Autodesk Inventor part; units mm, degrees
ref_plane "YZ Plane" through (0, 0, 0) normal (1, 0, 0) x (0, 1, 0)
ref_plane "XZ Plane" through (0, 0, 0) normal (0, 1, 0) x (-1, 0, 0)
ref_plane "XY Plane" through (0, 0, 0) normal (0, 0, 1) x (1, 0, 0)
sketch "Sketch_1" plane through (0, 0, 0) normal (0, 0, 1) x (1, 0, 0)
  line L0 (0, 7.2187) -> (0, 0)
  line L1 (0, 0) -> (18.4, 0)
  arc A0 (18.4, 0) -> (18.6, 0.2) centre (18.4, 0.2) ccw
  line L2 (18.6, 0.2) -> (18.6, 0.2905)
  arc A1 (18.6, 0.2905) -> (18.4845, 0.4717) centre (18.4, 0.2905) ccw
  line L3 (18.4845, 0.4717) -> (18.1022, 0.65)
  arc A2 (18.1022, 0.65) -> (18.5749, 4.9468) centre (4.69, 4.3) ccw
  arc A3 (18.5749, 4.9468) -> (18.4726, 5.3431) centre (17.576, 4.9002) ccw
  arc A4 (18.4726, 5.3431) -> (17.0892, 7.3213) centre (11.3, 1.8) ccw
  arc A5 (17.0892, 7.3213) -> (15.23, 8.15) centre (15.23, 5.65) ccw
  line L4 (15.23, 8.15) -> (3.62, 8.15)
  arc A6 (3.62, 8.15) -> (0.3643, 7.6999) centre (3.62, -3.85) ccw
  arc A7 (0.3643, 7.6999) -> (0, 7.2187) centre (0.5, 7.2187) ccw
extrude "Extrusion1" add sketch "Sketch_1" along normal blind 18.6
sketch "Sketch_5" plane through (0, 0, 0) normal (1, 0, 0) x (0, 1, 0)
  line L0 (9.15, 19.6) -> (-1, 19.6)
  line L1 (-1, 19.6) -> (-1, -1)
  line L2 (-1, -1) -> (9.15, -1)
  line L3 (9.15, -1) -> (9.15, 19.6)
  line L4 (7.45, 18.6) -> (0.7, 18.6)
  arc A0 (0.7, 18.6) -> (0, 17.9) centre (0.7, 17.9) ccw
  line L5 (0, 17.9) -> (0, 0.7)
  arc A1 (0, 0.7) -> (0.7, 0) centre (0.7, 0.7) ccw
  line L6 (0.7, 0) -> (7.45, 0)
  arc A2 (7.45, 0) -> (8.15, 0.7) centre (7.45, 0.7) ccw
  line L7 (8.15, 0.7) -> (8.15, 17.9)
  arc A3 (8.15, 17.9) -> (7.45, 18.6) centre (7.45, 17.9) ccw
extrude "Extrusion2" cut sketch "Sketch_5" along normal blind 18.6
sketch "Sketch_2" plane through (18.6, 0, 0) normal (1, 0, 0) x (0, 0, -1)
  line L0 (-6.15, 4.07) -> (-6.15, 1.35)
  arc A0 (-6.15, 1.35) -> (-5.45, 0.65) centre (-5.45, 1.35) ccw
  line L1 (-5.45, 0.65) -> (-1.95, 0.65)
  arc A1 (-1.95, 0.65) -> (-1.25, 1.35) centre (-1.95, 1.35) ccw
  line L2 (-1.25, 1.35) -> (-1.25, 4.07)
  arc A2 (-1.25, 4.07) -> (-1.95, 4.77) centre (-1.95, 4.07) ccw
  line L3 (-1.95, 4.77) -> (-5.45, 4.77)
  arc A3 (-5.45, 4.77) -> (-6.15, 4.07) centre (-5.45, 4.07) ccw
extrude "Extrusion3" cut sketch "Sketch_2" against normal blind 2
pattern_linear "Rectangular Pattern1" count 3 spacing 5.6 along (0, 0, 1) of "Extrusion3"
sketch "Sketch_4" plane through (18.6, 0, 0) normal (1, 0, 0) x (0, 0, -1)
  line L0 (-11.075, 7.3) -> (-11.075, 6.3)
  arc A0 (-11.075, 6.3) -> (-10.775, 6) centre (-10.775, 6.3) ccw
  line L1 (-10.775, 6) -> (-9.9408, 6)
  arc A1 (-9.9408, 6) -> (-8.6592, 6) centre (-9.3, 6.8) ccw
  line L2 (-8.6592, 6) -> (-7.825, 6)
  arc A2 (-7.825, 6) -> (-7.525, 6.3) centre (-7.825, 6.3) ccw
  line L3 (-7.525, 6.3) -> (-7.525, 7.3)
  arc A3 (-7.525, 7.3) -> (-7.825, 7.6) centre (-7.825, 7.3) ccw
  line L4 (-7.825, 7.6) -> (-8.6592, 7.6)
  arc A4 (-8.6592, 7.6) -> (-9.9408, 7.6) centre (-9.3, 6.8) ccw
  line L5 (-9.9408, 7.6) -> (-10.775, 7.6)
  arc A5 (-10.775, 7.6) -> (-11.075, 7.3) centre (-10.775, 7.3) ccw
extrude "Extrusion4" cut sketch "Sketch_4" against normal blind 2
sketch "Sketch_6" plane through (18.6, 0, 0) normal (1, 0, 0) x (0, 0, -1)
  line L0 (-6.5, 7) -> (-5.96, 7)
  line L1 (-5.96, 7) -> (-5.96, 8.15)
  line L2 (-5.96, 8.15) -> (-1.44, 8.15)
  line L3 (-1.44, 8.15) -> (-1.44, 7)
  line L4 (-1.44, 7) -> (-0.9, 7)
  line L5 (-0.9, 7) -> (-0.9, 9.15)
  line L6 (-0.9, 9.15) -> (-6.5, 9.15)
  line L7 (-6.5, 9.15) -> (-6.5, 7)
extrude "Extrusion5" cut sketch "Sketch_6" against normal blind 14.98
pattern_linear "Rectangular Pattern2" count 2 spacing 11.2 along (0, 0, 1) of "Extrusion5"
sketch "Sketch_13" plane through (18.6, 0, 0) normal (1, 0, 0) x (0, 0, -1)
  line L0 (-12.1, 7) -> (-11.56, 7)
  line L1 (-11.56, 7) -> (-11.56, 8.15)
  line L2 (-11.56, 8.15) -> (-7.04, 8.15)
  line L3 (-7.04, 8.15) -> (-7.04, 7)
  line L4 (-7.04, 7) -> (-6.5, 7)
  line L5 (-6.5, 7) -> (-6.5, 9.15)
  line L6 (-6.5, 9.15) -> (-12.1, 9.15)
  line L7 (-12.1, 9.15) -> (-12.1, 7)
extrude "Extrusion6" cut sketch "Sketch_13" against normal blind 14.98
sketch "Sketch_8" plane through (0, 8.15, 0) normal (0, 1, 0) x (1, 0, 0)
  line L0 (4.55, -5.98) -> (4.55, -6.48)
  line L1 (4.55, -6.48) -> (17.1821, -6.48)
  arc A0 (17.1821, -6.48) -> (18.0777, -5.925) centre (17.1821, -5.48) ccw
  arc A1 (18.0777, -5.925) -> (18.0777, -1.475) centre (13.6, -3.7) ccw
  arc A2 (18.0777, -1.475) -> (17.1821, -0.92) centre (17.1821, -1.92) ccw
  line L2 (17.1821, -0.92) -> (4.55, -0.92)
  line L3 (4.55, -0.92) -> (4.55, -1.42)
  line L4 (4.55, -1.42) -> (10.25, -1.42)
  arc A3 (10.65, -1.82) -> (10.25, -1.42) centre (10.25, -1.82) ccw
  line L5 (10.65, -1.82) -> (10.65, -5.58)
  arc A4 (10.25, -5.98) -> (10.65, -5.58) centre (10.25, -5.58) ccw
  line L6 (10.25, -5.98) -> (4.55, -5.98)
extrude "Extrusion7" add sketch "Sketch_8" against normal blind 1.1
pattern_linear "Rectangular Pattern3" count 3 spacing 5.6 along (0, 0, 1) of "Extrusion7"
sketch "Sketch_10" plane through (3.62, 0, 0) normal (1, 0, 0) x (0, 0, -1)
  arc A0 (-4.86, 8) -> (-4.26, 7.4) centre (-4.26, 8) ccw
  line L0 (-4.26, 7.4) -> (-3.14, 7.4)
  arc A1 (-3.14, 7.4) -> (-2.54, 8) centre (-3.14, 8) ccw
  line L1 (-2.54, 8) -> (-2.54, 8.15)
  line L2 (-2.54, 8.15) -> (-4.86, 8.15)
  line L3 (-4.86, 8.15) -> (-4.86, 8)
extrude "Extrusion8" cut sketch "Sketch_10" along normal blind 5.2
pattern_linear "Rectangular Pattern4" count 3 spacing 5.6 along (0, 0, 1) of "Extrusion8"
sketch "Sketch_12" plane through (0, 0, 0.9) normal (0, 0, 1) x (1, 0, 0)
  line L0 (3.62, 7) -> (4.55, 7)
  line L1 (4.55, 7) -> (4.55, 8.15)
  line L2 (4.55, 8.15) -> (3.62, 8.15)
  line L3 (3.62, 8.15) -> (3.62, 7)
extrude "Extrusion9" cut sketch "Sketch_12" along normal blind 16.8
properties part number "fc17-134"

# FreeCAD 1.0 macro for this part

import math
import FreeCAD as App
import Part
import Sketcher

V = App.Vector


def add_polygon(sketch, points):
    """Adds a closed chain of lines whose ends are joined by coincident constraints."""
    first, n = sketch.GeometryCount, len(points)
    for a, b in zip(points, points[1:] + points[:1]):
        sketch.addGeometry(Part.LineSegment(App.Vector(*a, 0), App.Vector(*b, 0)), False)
    for i in range(n):
        sketch.addConstraint(Sketcher.Constraint("Coincident", first + i, 2, first + (i + 1) % n, 1))

doc = App.newDocument("Part")
body = doc.addObject("PartDesign::Body", "Body")

# Sketch on XY plane
sketch1 = body.newObject("Sketcher::SketchObject", "Sketch")
sketch1.AttachmentSupport = (doc.getObject("XY_Plane"), [""])
sketch1.MapMode = "FlatFace"
sketch1.addGeometry(Part.ArcOfCircle(Part.Circle(V(0.5, 7.2187, 0), V(0, 0, 1), 0.499968), math.radians(105.748628), math.radians(180)), False)
sketch1.addGeometry(Part.LineSegment(V(0, 7.2187, 0), V(0, 0, 0)), False)
sketch1.addGeometry(Part.LineSegment(V(0, 0, 0), V(18.4, 0, 0)), False)
sketch1.addGeometry(Part.ArcOfCircle(Part.Circle(V(18.4, 0.2, 0), V(0, 0, 1), 0.2), math.radians(-90), math.radians(0)), False)
sketch1.addGeometry(Part.LineSegment(V(18.6, 0.2, 0), V(18.6, 0.2905, 0)), False)
sketch1.addGeometry(Part.ArcOfCircle(Part.Circle(V(18.4, 0.2905, 0), V(0, 0, 1), 0.2), math.radians(0), math.radians(64.998688)), False)
sketch1.addGeometry(Part.LineSegment(V(18.4845, 0.4717, 0), V(18.1022, 0.65, 0)), False)
sketch1.addGeometry(Part.ArcOfCircle(Part.Circle(V(4.691181, 4.299776, 0), V(0, 0, 1), 13.898787), math.radians(-15.224197), math.radians(2.66823)), False)
sketch1.addGeometry(Part.ArcOfCircle(Part.Circle(V(17.576, 4.9002, 0), V(0, 0, 1), 0.999986), math.radians(2.670987), math.radians(26.288324)), False)
sketch1.addGeometry(Part.ArcOfCircle(Part.Circle(V(11.3, 1.8, 0), V(0, 0, 1), 7.999984), math.radians(26.288316), math.radians(43.643148)), False)
sketch1.addGeometry(Part.ArcOfCircle(Part.Circle(V(15.23, 5.65, 0), V(0, 0, 1), 2.499974), math.radians(41.953483), math.radians(90)), False)
sketch1.addGeometry(Part.LineSegment(V(15.23, 8.15, 0), V(3.62, 8.15, 0)), False)
sketch1.addGeometry(Part.ArcOfCircle(Part.Circle(V(3.62, -3.85, 0), V(0, 0, 1), 12), math.radians(90), math.radians(105.742148)), False)
sketch1.addConstraint(Sketcher.Constraint("Coincident", 0, 2, 1, 1))
sketch1.addConstraint(Sketcher.Constraint("Coincident", 1, 2, 2, 1))
sketch1.addConstraint(Sketcher.Constraint("Coincident", 2, 2, 3, 1))
sketch1.addConstraint(Sketcher.Constraint("Coincident", 3, 2, 4, 1))
sketch1.addConstraint(Sketcher.Constraint("Coincident", 4, 2, 5, 1))
sketch1.addConstraint(Sketcher.Constraint("Coincident", 5, 2, 6, 1))
sketch1.addConstraint(Sketcher.Constraint("Coincident", 6, 2, 7, 1))
sketch1.addConstraint(Sketcher.Constraint("Coincident", 7, 2, 8, 1))
sketch1.addConstraint(Sketcher.Constraint("Coincident", 8, 2, 9, 1))
sketch1.addConstraint(Sketcher.Constraint("Coincident", 9, 2, 10, 1))
sketch1.addConstraint(Sketcher.Constraint("Coincident", 10, 2, 11, 1))
sketch1.addConstraint(Sketcher.Constraint("Coincident", 11, 2, 12, 1))
sketch1.addConstraint(Sketcher.Constraint("Coincident", 12, 2, 0, 1))
sketch1.addConstraint(Sketcher.Constraint("Vertical", 1))
sketch1.addConstraint(Sketcher.Constraint("Horizontal", 2))
sketch1.addConstraint(Sketcher.Constraint("Vertical", 4))
sketch1.addConstraint(Sketcher.Constraint("Horizontal", 11))
sketch1.addConstraint(Sketcher.Constraint("Coincident", 1, 2, -1, 1))
sketch1.addConstraint(Sketcher.Constraint("Radius", 8, 1.0))
sketch1.addConstraint(Sketcher.Constraint("Radius", 9, 8.0))
sketch1.addConstraint(Sketcher.Constraint("Radius", 12, 12.0))
sketch1.addConstraint(Sketcher.Constraint("Radius", 0, 0.5))
sketch1.addConstraint(Sketcher.Constraint("Radius", 3, 0.2))
sketch1.addConstraint(Sketcher.Constraint("Radius", 5, 0.2))
sketch1.addConstraint(Sketcher.Constraint("Radius", 10, 2.5))
sketch1.addConstraint(Sketcher.Constraint("DistanceX", 2, 1, 2, 2, 18.4))
sketch1.addConstraint(Sketcher.Constraint("DistanceX", 11, 2, 11, 1, 11.61))
sketch1.addConstraint(Sketcher.Constraint("DistanceX", -1, 1, 3, 3, 18.4))
sketch1.addConstraint(Sketcher.Constraint("DistanceX", -1, 1, 9, 3, 11.3))
sketch1.addConstraint(Sketcher.Constraint("DistanceY", -1, 1, 9, 3, 1.8))
sketch1.addConstraint(Sketcher.Constraint("DistanceY", -1, 1, 3, 2, 0.2))
sketch1.addConstraint(Sketcher.Constraint("DistanceY", -1, 1, 12, 2, 7.7))
sketch1.addConstraint(Sketcher.Constraint("Radius", 7, 13.8988))
sketch1.addConstraint(Sketcher.Constraint("DistanceX", -1, 1, 10, 3, 15.23))
sketch1.addConstraint(Sketcher.Constraint("DistanceY", -1, 1, 10, 3, 5.65))
sketch1.addConstraint(Sketcher.Constraint("DistanceX", -1, 1, 12, 3, 3.62))
sketch1.addConstraint(Sketcher.Constraint("DistanceY", -1, 1, 6, 2, 0.65))
sketch1.addConstraint(Sketcher.Constraint("DistanceX", -1, 1, 10, 2, 15.23))
sketch1.addConstraint(Sketcher.Constraint("DistanceY", 1, 2, 1, 1, 7.2187))
sketch1.addConstraint(Sketcher.Constraint("DistanceY", 4, 1, 4, 2, 0.0905))
sketch1.addConstraint(Sketcher.Constraint("DistanceX", -1, 1, 8, 3, 17.576))
sketch1.addConstraint(Sketcher.Constraint("DistanceX", -1, 1, 7, 2, 18.575))
sketch1.addConstraint(Sketcher.Constraint("DistanceY", -1, 1, 8, 2, 5.343))
sketch1.addConstraint(Sketcher.Constraint("DistanceY", 7, 3, 0, 3, 2.919))
sketch1.addConstraint(Sketcher.Constraint("DistanceY", 5, 2, 7, 2, 4.475))
sketch1.addConstraint(Sketcher.Constraint("DistanceX", 8, 2, 5, 2, 0.012))
pad1 = body.newObject("PartDesign::Pad", "Pad")
pad1.Profile = sketch1
pad1.Length = 18.6

# Sketch on YZ plane
sketch2 = body.newObject("Sketcher::SketchObject", "Sketch001")
sketch2.AttachmentSupport = (doc.getObject("YZ_Plane"), [""])
sketch2.MapMode = "FlatFace"
add_polygon(sketch2, [(9.2, -1), (9.2, 19.6), (-1, 19.6), (-1, -1)])  # lines 0-3
sketch2.addGeometry(Part.LineSegment(V(0.7, 18.6, 0), V(7.5, 18.6, 0)), False)  # 4
sketch2.addGeometry(Part.ArcOfCircle(Part.Circle(V(7.5, 17.9, 0), V(0, 0, 1), 0.7), math.radians(0), math.radians(90)), False)  # 5
sketch2.addGeometry(Part.LineSegment(V(8.2, 17.9, 0), V(8.2, 0.7, 0)), False)  # 6
sketch2.addGeometry(Part.ArcOfCircle(Part.Circle(V(7.5, 0.7, 0), V(0, 0, 1), 0.7), math.radians(-90), math.radians(0)), False)  # 7
sketch2.addGeometry(Part.LineSegment(V(7.5, 0, 0), V(0.7, 0, 0)), False)  # 8
sketch2.addGeometry(Part.ArcOfCircle(Part.Circle(V(0.7, 0.7, 0), V(0, 0, 1), 0.7), math.radians(180), math.radians(270)), False)  # 9
sketch2.addGeometry(Part.LineSegment(V(0, 0.7, 0), V(0, 17.9, 0)), False)  # 10
sketch2.addGeometry(Part.ArcOfCircle(Part.Circle(V(0.7, 17.9, 0), V(0, 0, 1), 0.7), math.radians(90), math.radians(180)), False)  # 11
sketch2.addConstraint(Sketcher.Constraint("Tangent", 4, 2, 5, 2))
sketch2.addConstraint(Sketcher.Constraint("Tangent", 5, 1, 6, 1))
sketch2.addConstraint(Sketcher.Constraint("Tangent", 6, 2, 7, 2))
sketch2.addConstraint(Sketcher.Constraint("Tangent", 7, 1, 8, 1))
sketch2.addConstraint(Sketcher.Constraint("Tangent", 8, 2, 9, 2))
sketch2.addConstraint(Sketcher.Constraint("Tangent", 9, 1, 10, 1))
sketch2.addConstraint(Sketcher.Constraint("Tangent", 10, 2, 11, 2))
sketch2.addConstraint(Sketcher.Constraint("Tangent", 11, 1, 4, 1))
sketch2.addConstraint(Sketcher.Constraint("Vertical", 0))
sketch2.addConstraint(Sketcher.Constraint("Horizontal", 1))
sketch2.addConstraint(Sketcher.Constraint("Vertical", 2))
sketch2.addConstraint(Sketcher.Constraint("Horizontal", 3))
sketch2.addConstraint(Sketcher.Constraint("Horizontal", 4))
sketch2.addConstraint(Sketcher.Constraint("Vertical", 6))
sketch2.addConstraint(Sketcher.Constraint("Horizontal", 8))
sketch2.addConstraint(Sketcher.Constraint("Vertical", 10))
sketch2.addConstraint(Sketcher.Constraint("Equal", 5, 7))
sketch2.addConstraint(Sketcher.Constraint("Equal", 7, 9))
sketch2.addConstraint(Sketcher.Constraint("Equal", 9, 11))
sketch2.addConstraint(Sketcher.Constraint("PointOnObject", 7, 1, -1))
sketch2.addConstraint(Sketcher.Constraint("PointOnObject", 9, 1, -2))
sketch2.addConstraint(Sketcher.Constraint("Radius", 5, 0.7))
sketch2.addConstraint(Sketcher.Constraint("DistanceY", 0, 1, 0, 2, 20.6))
sketch2.addConstraint(Sketcher.Constraint("DistanceY", 6, 2, 6, 1, 17.2))
sketch2.addConstraint(Sketcher.Constraint("DistanceX", 1, 2, -1, 1, 1.0))
sketch2.addConstraint(Sketcher.Constraint("DistanceY", 2, 2, -1, 1, 1.0))
sketch2.addConstraint(Sketcher.Constraint("DistanceX", 5, 1, 0, 2, 1.0))
sketch2.addConstraint(Sketcher.Constraint("DistanceX", 1, 2, 1, 1, 10.15))
pocket1 = body.newObject("PartDesign::Pocket", "Pocket")
pocket1.Profile = sketch2
pocket1.Length = 18.6
pocket1.Reversed = True

# Sketch on YZ plane
sketch3 = body.newObject("Sketcher::SketchObject", "Sketch002")
sketch3.AttachmentSupport = (doc.getObject("YZ_Plane"), [""])
sketch3.MapMode = "FlatFace"
sketch3.AttachmentOffset = App.Placement(V(0, 0, 18.6), App.Rotation())
sketch3.addGeometry(Part.ArcOfCircle(Part.Circle(V(4.1, 5.5, 0), V(0, 0, 1), 0.7), math.radians(0), math.radians(90)), False)
sketch3.addGeometry(Part.LineSegment(V(4.1, 6.2, 0), V(1.4, 6.2, 0)), False)
sketch3.addGeometry(Part.ArcOfCircle(Part.Circle(V(1.4, 5.5, 0), V(0, 0, 1), 0.7), math.radians(90), math.radians(180)), False)
sketch3.addGeometry(Part.LineSegment(V(0.7, 5.5, 0), V(0.7, 1.9, 0)), False)
sketch3.addGeometry(Part.ArcOfCircle(Part.Circle(V(1.4, 1.9, 0), V(0, 0, 1), 0.7), math.radians(180), math.radians(270)), False)
sketch3.addGeometry(Part.LineSegment(V(1.4, 1.2, 0), V(4.1, 1.2, 0)), False)
sketch3.addGeometry(Part.ArcOfCircle(Part.Circle(V(4.1, 1.9, 0), V(0, 0, 1), 0.7), math.radians(-90), math.radians(0)), False)
sketch3.addGeometry(Part.LineSegment(V(4.8, 1.9, 0), V(4.8, 5.5, 0)), False)
sketch3.addConstraint(Sketcher.Constraint("Tangent", 0, 2, 1, 1))
sketch3.addConstraint(Sketcher.Constraint("Tangent", 1, 2, 2, 1))
sketch3.addConstraint(Sketcher.Constraint("Tangent", 2, 2, 3, 1))
sketch3.addConstraint(Sketcher.Constraint("Tangent", 3, 2, 4, 1))
sketch3.addConstraint(Sketcher.Constraint("Tangent", 4, 2, 5, 1))
sketch3.addConstraint(Sketcher.Constraint("Tangent", 5, 2, 6, 1))
sketch3.addConstraint(Sketcher.Constraint("Tangent", 6, 2, 7, 1))
sketch3.addConstraint(Sketcher.Constraint("Tangent", 7, 2, 0, 1))
sketch3.addConstraint(Sketcher.Constraint("Horizontal", 1))
sketch3.addConstraint(Sketcher.Constraint("Vertical", 3))
sketch3.addConstraint(Sketcher.Constraint("Horizontal", 5))
sketch3.addConstraint(Sketcher.Constraint("Vertical", 7))
sketch3.addConstraint(Sketcher.Constraint("Equal", 0, 2))
sketch3.addConstraint(Sketcher.Constraint("Equal", 2, 4))
sketch3.addConstraint(Sketcher.Constraint("Equal", 4, 6))
sketch3.addConstraint(Sketcher.Constraint("Radius", 0, 0.7))
sketch3.addConstraint(Sketcher.Constraint("DistanceY", 3, 2, 3, 1, 3.5))
sketch3.addConstraint(Sketcher.Constraint("DistanceX", 1, 2, 1, 1, 2.72))
sketch3.addConstraint(Sketcher.Constraint("DistanceX", -1, 1, 0, 3, 4.07))
sketch3.addConstraint(Sketcher.Constraint("DistanceY", -1, 1, 0, 3, 5.45))
pocket2 = body.newObject("PartDesign::Pocket", "Pocket001")
pocket2.Profile = sketch3
pocket2.Length = 2
doc.recompute()

linearpattern = body.newObject("PartDesign::LinearPattern", "LinearPattern")
linearpattern.Originals = [pocket2]
linearpattern.Direction = (doc.getObject("Z_Axis"), [""])
linearpattern.Mode = "offset"
linearpattern.Offset = 5.6
linearpattern.Occurrences = 3
body.Tip = linearpattern

# Sketch on YZ plane
sketch4 = body.newObject("Sketcher::SketchObject", "Sketch003")
sketch4.AttachmentSupport = (doc.getObject("YZ_Plane"), [""])
sketch4.MapMode = "FlatFace"
sketch4.AttachmentOffset = App.Placement(V(0, 0, 18.6), App.Rotation())
sketch4.addGeometry(Part.ArcOfCircle(Part.Circle(V(7.3, 10.78, 0), V(0, 0, 1), 0.3), math.radians(0), math.radians(90)), False)
sketch4.addGeometry(Part.LineSegment(V(7.3, 11.07, 0), V(6.3, 11.07, 0)), False)
sketch4.addGeometry(Part.ArcOfCircle(Part.Circle(V(6.3, 10.78, 0), V(0, 0, 1), 0.3), math.radians(90), math.radians(180)), False)
sketch4.addGeometry(Part.LineSegment(V(6, 10.78, 0), V(6, 9.94, 0)), False)
sketch4.addGeometry(Part.ArcOfCircle(Part.Circle(V(6.8, 9.3, 0), V(0, 0, 1), 1.02), math.radians(141), math.radians(219)), False)
sketch4.addGeometry(Part.LineSegment(V(6, 8.66, 0), V(6, 7.83, 0)), False)
sketch4.addGeometry(Part.ArcOfCircle(Part.Circle(V(6.3, 7.83, 0), V(0, 0, 1), 0.3), math.radians(180), math.radians(270)), False)
sketch4.addGeometry(Part.LineSegment(V(6.3, 7.53, 0), V(7.3, 7.53, 0)), False)
sketch4.addGeometry(Part.ArcOfCircle(Part.Circle(V(7.3, 7.83, 0), V(0, 0, 1), 0.3), math.radians(-90), math.radians(0)), False)
sketch4.addGeometry(Part.LineSegment(V(7.6, 7.83, 0), V(7.6, 8.66, 0)), False)
sketch4.addGeometry(Part.ArcOfCircle(Part.Circle(V(6.8, 9.3, 0), V(0, 0, 1), 1.02), math.radians(-39), math.radians(39)), False)
sketch4.addGeometry(Part.LineSegment(V(7.6, 9.94, 0), V(7.6, 10.78, 0)), False)
sketch4.addConstraint(Sketcher.Constraint("Tangent", 0, 2, 1, 1))
sketch4.addConstraint(Sketcher.Constraint("Tangent", 1, 2, 2, 1))
sketch4.addConstraint(Sketcher.Constraint("Tangent", 2, 2, 3, 1))
sketch4.addConstraint(Sketcher.Constraint("Coincident", 3, 2, 4, 1))
sketch4.addConstraint(Sketcher.Constraint("Coincident", 4, 2, 5, 1))
sketch4.addConstraint(Sketcher.Constraint("Tangent", 5, 2, 6, 1))
sketch4.addConstraint(Sketcher.Constraint("Tangent", 6, 2, 7, 1))
sketch4.addConstraint(Sketcher.Constraint("Tangent", 7, 2, 8, 1))
sketch4.addConstraint(Sketcher.Constraint("Tangent", 8, 2, 9, 1))
sketch4.addConstraint(Sketcher.Constraint("Coincident", 9, 2, 10, 1))
sketch4.addConstraint(Sketcher.Constraint("Coincident", 10, 2, 11, 1))
sketch4.addConstraint(Sketcher.Constraint("Tangent", 11, 2, 0, 1))
sketch4.addConstraint(Sketcher.Constraint("Horizontal", 1))
sketch4.addConstraint(Sketcher.Constraint("Vertical", 3))
sketch4.addConstraint(Sketcher.Constraint("Vertical", 5))
sketch4.addConstraint(Sketcher.Constraint("Horizontal", 7))
sketch4.addConstraint(Sketcher.Constraint("Vertical", 9))
sketch4.addConstraint(Sketcher.Constraint("Vertical", 11))
sketch4.addConstraint(Sketcher.Constraint("Coincident", 10, 3, 4, 3))
sketch4.addConstraint(Sketcher.Constraint("Equal", 0, 2))
sketch4.addConstraint(Sketcher.Constraint("Equal", 2, 6))
sketch4.addConstraint(Sketcher.Constraint("Equal", 6, 8))
sketch4.addConstraint(Sketcher.Constraint("Equal", 4, 10))
sketch4.addConstraint(Sketcher.Constraint("Horizontal", 4, 2, 9, 2))
sketch4.addConstraint(Sketcher.Constraint("Horizontal", 3, 2, 10, 2))
sketch4.addConstraint(Sketcher.Constraint("Vertical", 2, 3, 6, 3))
sketch4.addConstraint(Sketcher.Constraint("Equal", 3, 5))
sketch4.addConstraint(Sketcher.Constraint("Radius", 0, 0.3))
sketch4.addConstraint(Sketcher.Constraint("DistanceX", 1, 2, 1, 1, 1.0))
sketch4.addConstraint(Sketcher.Constraint("DistanceX", -1, 1, 2, 2, 6.0))
sketch4.addConstraint(Sketcher.Constraint("Radius", 4, 1.025))
sketch4.addConstraint(Sketcher.Constraint("DistanceY", -1, 1, 4, 3, 9.3))
sketch4.addConstraint(Sketcher.Constraint("DistanceY", 6, 3, 2, 3, 2.95))
pocket3 = body.newObject("PartDesign::Pocket", "Pocket002")
pocket3.Profile = sketch4
pocket3.Length = 2

# Sketch on YZ plane
sketch5 = body.newObject("Sketcher::SketchObject", "Sketch004")
sketch5.AttachmentSupport = (doc.getObject("YZ_Plane"), [""])
sketch5.MapMode = "FlatFace"
sketch5.AttachmentOffset = App.Placement(V(0, 0, 18.6), App.Rotation())
add_polygon(sketch5, [(9.2, 6.5), (7, 6.5), (7, 6), (8.2, 6), (8.2, 1.4), (7, 1.4), (7, 0.9), (9.2, 0.9)])  # lines 0-7
sketch5.addConstraint(Sketcher.Constraint("Horizontal", 0))
sketch5.addConstraint(Sketcher.Constraint("Vertical", 1))
sketch5.addConstraint(Sketcher.Constraint("Horizontal", 2))
sketch5.addConstraint(Sketcher.Constraint("Vertical", 3))
sketch5.addConstraint(Sketcher.Constraint("Horizontal", 4))
sketch5.addConstraint(Sketcher.Constraint("Vertical", 5))
sketch5.addConstraint(Sketcher.Constraint("Horizontal", 6))
sketch5.addConstraint(Sketcher.Constraint("Vertical", 7))
sketch5.addConstraint(Sketcher.Constraint("Vertical", 1, 2, 4, 2))
sketch5.addConstraint(Sketcher.Constraint("Equal", 1, 5))
sketch5.addConstraint(Sketcher.Constraint("DistanceY", 7, 1, 7, 2, 5.6))
sketch5.addConstraint(Sketcher.Constraint("DistanceX", -1, 1, 0, 2, 7.0))
sketch5.addConstraint(Sketcher.Constraint("DistanceX", 3, 2, 6, 2, 1.0))
sketch5.addConstraint(Sketcher.Constraint("DistanceX", 0, 2, 0, 1, 2.15))
sketch5.addConstraint(Sketcher.Constraint("DistanceY", 1, 2, 1, 1, 0.54))
sketch5.addConstraint(Sketcher.Constraint("DistanceY", -1, 1, 0, 2, 6.5))
pocket4 = body.newObject("PartDesign::Pocket", "Pocket003")
pocket4.Profile = sketch5
pocket4.Length = 14.98
doc.recompute()

linearpattern2 = body.newObject("PartDesign::LinearPattern", "LinearPattern001")
linearpattern2.Originals = [pocket4]
linearpattern2.Direction = (doc.getObject("Z_Axis"), [""])
linearpattern2.Mode = "offset"
linearpattern2.Offset = 11.2
linearpattern2.Occurrences = 2
body.Tip = linearpattern2

# Sketch on YZ plane
sketch6 = body.newObject("Sketcher::SketchObject", "Sketch005")
sketch6.AttachmentSupport = (doc.getObject("YZ_Plane"), [""])
sketch6.MapMode = "FlatFace"
sketch6.AttachmentOffset = App.Placement(V(0, 0, 18.6), App.Rotation())
add_polygon(sketch6, [(9.2, 12.1), (7, 12.1), (7, 11.6), (8.2, 11.6), (8.2, 7), (7, 7), (7, 6.5), (9.2, 6.5)])  # lines 0-7
sketch6.addConstraint(Sketcher.Constraint("Horizontal", 0))
sketch6.addConstraint(Sketcher.Constraint("Vertical", 1))
sketch6.addConstraint(Sketcher.Constraint("Horizontal", 2))
sketch6.addConstraint(Sketcher.Constraint("Vertical", 3))
sketch6.addConstraint(Sketcher.Constraint("Horizontal", 4))
sketch6.addConstraint(Sketcher.Constraint("Vertical", 5))
sketch6.addConstraint(Sketcher.Constraint("Horizontal", 6))
sketch6.addConstraint(Sketcher.Constraint("Vertical", 7))
sketch6.addConstraint(Sketcher.Constraint("Vertical", 1, 2, 4, 2))
sketch6.addConstraint(Sketcher.Constraint("Equal", 1, 5))
sketch6.addConstraint(Sketcher.Constraint("DistanceY", 7, 1, 7, 2, 5.6))
sketch6.addConstraint(Sketcher.Constraint("DistanceX", -1, 1, 0, 2, 7.0))
sketch6.addConstraint(Sketcher.Constraint("DistanceX", 3, 2, 6, 2, 1.0))
sketch6.addConstraint(Sketcher.Constraint("DistanceX", 0, 2, 0, 1, 2.15))
sketch6.addConstraint(Sketcher.Constraint("DistanceY", 1, 2, 1, 1, 0.54))
sketch6.addConstraint(Sketcher.Constraint("DistanceY", -1, 1, 0, 2, 12.1))
pocket5 = body.newObject("PartDesign::Pocket", "Pocket004")
pocket5.Profile = sketch6
pocket5.Length = 14.98

# Sketch on XZ plane
sketch7 = body.newObject("Sketcher::SketchObject", "Sketch006")
sketch7.AttachmentSupport = (doc.getObject("XZ_Plane"), [""])
sketch7.MapMode = "FlatFace"
sketch7.AttachmentOffset = App.Placement(V(0, 0, -8.15), App.Rotation())
sketch7.addGeometry(Part.LineSegment(V(10.25, 5.98, 0), V(4.55, 5.98, 0)), False)
sketch7.addGeometry(Part.LineSegment(V(4.55, 5.98, 0), V(4.55, 6.48, 0)), False)
sketch7.addGeometry(Part.LineSegment(V(4.55, 6.48, 0), V(17.18, 6.48, 0)), False)
sketch7.addGeometry(Part.ArcOfCircle(Part.Circle(V(17.18, 5.48, 0), V(0, 0, 1), 1), math.radians(26), math.radians(90)), False)
sketch7.addGeometry(Part.ArcOfCircle(Part.Circle(V(13.6, 3.7, 0), V(0, 0, 1), 5), math.radians(-26), math.radians(26)), False)
sketch7.addGeometry(Part.ArcOfCircle(Part.Circle(V(17.18, 1.92, 0), V(0, 0, 1), 1), math.radians(-90), math.radians(-26)), False)
sketch7.addGeometry(Part.LineSegment(V(17.18, 0.92, 0), V(4.55, 0.92, 0)), False)
sketch7.addGeometry(Part.LineSegment(V(4.55, 0.92, 0), V(4.55, 1.42, 0)), False)
sketch7.addGeometry(Part.LineSegment(V(4.55, 1.42, 0), V(10.25, 1.42, 0)), False)
sketch7.addGeometry(Part.ArcOfCircle(Part.Circle(V(10.25, 1.82, 0), V(0, 0, 1), 0.4), math.radians(-90), math.radians(0)), False)
sketch7.addGeometry(Part.LineSegment(V(10.65, 1.82, 0), V(10.65, 5.58, 0)), False)
sketch7.addGeometry(Part.ArcOfCircle(Part.Circle(V(10.25, 5.58, 0), V(0, 0, 1), 0.4), math.radians(0), math.radians(90)), False)
sketch7.addConstraint(Sketcher.Constraint("Coincident", 0, 2, 1, 1))
sketch7.addConstraint(Sketcher.Constraint("Coincident", 1, 2, 2, 1))
sketch7.addConstraint(Sketcher.Constraint("Tangent", 2, 2, 3, 2))
sketch7.addConstraint(Sketcher.Constraint("Tangent", 3, 1, 4, 2))
sketch7.addConstraint(Sketcher.Constraint("Tangent", 4, 1, 5, 2))
sketch7.addConstraint(Sketcher.Constraint("Tangent", 5, 1, 6, 1))
sketch7.addConstraint(Sketcher.Constraint("Coincident", 6, 2, 7, 1))
sketch7.addConstraint(Sketcher.Constraint("Coincident", 7, 2, 8, 1))
sketch7.addConstraint(Sketcher.Constraint("Tangent", 8, 2, 9, 1))
sketch7.addConstraint(Sketcher.Constraint("Tangent", 9, 2, 10, 1))
sketch7.addConstraint(Sketcher.Constraint("Tangent", 10, 2, 11, 1))
sketch7.addConstraint(Sketcher.Constraint("Tangent", 11, 2, 0, 1))
sketch7.addConstraint(Sketcher.Constraint("Horizontal", 0))
sketch7.addConstraint(Sketcher.Constraint("Vertical", 1))
sketch7.addConstraint(Sketcher.Constraint("Horizontal", 2))
sketch7.addConstraint(Sketcher.Constraint("Horizontal", 6))
sketch7.addConstraint(Sketcher.Constraint("Vertical", 7))
sketch7.addConstraint(Sketcher.Constraint("Horizontal", 8))
sketch7.addConstraint(Sketcher.Constraint("Vertical", 10))
sketch7.addConstraint(Sketcher.Constraint("Equal", 3, 5))
sketch7.addConstraint(Sketcher.Constraint("Equal", 9, 11))
sketch7.addConstraint(Sketcher.Constraint("Vertical", 3, 3, 5, 3))
sketch7.addConstraint(Sketcher.Constraint("Vertical", 1, 2, 6, 2))
sketch7.addConstraint(Sketcher.Constraint("Equal", 1, 7))
sketch7.addConstraint(Sketcher.Constraint("Radius", 3, 1.0))
sketch7.addConstraint(Sketcher.Constraint("Radius", 4, 5.0))
sketch7.addConstraint(Sketcher.Constraint("Radius", 9, 0.4))
sketch7.addConstraint(Sketcher.Constraint("DistanceX", 0, 2, 0, 1, 5.7))
sketch7.addConstraint(Sketcher.Constraint("DistanceY", 1, 1, 1, 2, 0.5))
sketch7.addConstraint(Sketcher.Constraint("DistanceY", 10, 1, 10, 2, 3.76))
sketch7.addConstraint(Sketcher.Constraint("DistanceX", -1, 1, 4, 3, 13.6))
sketch7.addConstraint(Sketcher.Constraint("DistanceY", -1, 1, 4, 3, 3.7))
sketch7.addConstraint(Sketcher.Constraint("DistanceX", 2, 1, 2, 2, 12.632))
pad2 = body.newObject("PartDesign::Pad", "Pad001")
pad2.Profile = sketch7
pad2.Length = 1.1
doc.recompute()

linearpattern3 = body.newObject("PartDesign::LinearPattern", "LinearPattern002")
linearpattern3.Originals = [pad2]
linearpattern3.Direction = (doc.getObject("Z_Axis"), [""])
linearpattern3.Mode = "offset"
linearpattern3.Offset = 5.6
linearpattern3.Occurrences = 3
body.Tip = linearpattern3

# Sketch on YZ plane
sketch8 = body.newObject("Sketcher::SketchObject", "Sketch007")
sketch8.AttachmentSupport = (doc.getObject("YZ_Plane"), [""])
sketch8.MapMode = "FlatFace"
sketch8.AttachmentOffset = App.Placement(V(0, 0, 3.62), App.Rotation())
sketch8.addGeometry(Part.LineSegment(V(8.15, 4.86, 0), V(8, 4.86, 0)), False)
sketch8.addGeometry(Part.ArcOfCircle(Part.Circle(V(8, 4.26, 0), V(0, 0, 1), 0.6), math.radians(90), math.radians(180)), False)
sketch8.addGeometry(Part.LineSegment(V(7.4, 4.26, 0), V(7.4, 3.14, 0)), False)
sketch8.addGeometry(Part.ArcOfCircle(Part.Circle(V(8, 3.14, 0), V(0, 0, 1), 0.6), math.radians(180), math.radians(270)), False)
sketch8.addGeometry(Part.LineSegment(V(8, 2.54, 0), V(8.15, 2.54, 0)), False)
sketch8.addGeometry(Part.LineSegment(V(8.15, 2.54, 0), V(8.15, 4.86, 0)), False)
sketch8.addConstraint(Sketcher.Constraint("Tangent", 0, 2, 1, 1))
sketch8.addConstraint(Sketcher.Constraint("Tangent", 1, 2, 2, 1))
sketch8.addConstraint(Sketcher.Constraint("Tangent", 2, 2, 3, 1))
sketch8.addConstraint(Sketcher.Constraint("Tangent", 3, 2, 4, 1))
sketch8.addConstraint(Sketcher.Constraint("Coincident", 4, 2, 5, 1))
sketch8.addConstraint(Sketcher.Constraint("Coincident", 5, 2, 0, 1))
sketch8.addConstraint(Sketcher.Constraint("Horizontal", 0))
sketch8.addConstraint(Sketcher.Constraint("Vertical", 2))
sketch8.addConstraint(Sketcher.Constraint("Horizontal", 4))
sketch8.addConstraint(Sketcher.Constraint("Vertical", 5))
sketch8.addConstraint(Sketcher.Constraint("Equal", 1, 3))
sketch8.addConstraint(Sketcher.Constraint("Radius", 1, 0.6))
sketch8.addConstraint(Sketcher.Constraint("DistanceX", -1, 1, 1, 3, 8.0))
sketch8.addConstraint(Sketcher.Constraint("DistanceX", 0, 2, 0, 1, 0.15))
sketch8.addConstraint(Sketcher.Constraint("DistanceY", 2, 2, 2, 1, 1.12))
sketch8.addConstraint(Sketcher.Constraint("DistanceY", -1, 1, 1, 3, 4.26))
pocket6 = body.newObject("PartDesign::Pocket", "Pocket005")
pocket6.Profile = sketch8
pocket6.Length = 5.2
pocket6.Reversed = True
doc.recompute()

linearpattern4 = body.newObject("PartDesign::LinearPattern", "LinearPattern003")
linearpattern4.Originals = [pocket6]
linearpattern4.Direction = (doc.getObject("Z_Axis"), [""])
linearpattern4.Mode = "offset"
linearpattern4.Offset = 5.6
linearpattern4.Occurrences = 3
body.Tip = linearpattern4

# Sketch on XY plane
sketch9 = body.newObject("Sketcher::SketchObject", "Sketch008")
sketch9.AttachmentSupport = (doc.getObject("XY_Plane"), [""])
sketch9.MapMode = "FlatFace"
sketch9.AttachmentOffset = App.Placement(V(0, 0, 0.9), App.Rotation())
add_polygon(sketch9, [(3.6, 8.2), (3.6, 7), (4.5, 7), (4.5, 8.2)])  # lines 0-3
sketch9.addConstraint(Sketcher.Constraint("Vertical", 0))
sketch9.addConstraint(Sketcher.Constraint("Horizontal", 1))
sketch9.addConstraint(Sketcher.Constraint("Vertical", 2))
sketch9.addConstraint(Sketcher.Constraint("Horizontal", 3))
sketch9.addConstraint(Sketcher.Constraint("DistanceY", -1, 1, 0, 2, 7.0))
sketch9.addConstraint(Sketcher.Constraint("DistanceX", 1, 1, 1, 2, 0.93))
sketch9.addConstraint(Sketcher.Constraint("DistanceY", 0, 2, 0, 1, 1.15))
sketch9.addConstraint(Sketcher.Constraint("DistanceX", -1, 1, 0, 2, 3.62))
pocket7 = body.newObject("PartDesign::Pocket", "Pocket006")
pocket7.Profile = sketch9
pocket7.Length = 16.8
pocket7.Reversed = True

doc.recompute()
